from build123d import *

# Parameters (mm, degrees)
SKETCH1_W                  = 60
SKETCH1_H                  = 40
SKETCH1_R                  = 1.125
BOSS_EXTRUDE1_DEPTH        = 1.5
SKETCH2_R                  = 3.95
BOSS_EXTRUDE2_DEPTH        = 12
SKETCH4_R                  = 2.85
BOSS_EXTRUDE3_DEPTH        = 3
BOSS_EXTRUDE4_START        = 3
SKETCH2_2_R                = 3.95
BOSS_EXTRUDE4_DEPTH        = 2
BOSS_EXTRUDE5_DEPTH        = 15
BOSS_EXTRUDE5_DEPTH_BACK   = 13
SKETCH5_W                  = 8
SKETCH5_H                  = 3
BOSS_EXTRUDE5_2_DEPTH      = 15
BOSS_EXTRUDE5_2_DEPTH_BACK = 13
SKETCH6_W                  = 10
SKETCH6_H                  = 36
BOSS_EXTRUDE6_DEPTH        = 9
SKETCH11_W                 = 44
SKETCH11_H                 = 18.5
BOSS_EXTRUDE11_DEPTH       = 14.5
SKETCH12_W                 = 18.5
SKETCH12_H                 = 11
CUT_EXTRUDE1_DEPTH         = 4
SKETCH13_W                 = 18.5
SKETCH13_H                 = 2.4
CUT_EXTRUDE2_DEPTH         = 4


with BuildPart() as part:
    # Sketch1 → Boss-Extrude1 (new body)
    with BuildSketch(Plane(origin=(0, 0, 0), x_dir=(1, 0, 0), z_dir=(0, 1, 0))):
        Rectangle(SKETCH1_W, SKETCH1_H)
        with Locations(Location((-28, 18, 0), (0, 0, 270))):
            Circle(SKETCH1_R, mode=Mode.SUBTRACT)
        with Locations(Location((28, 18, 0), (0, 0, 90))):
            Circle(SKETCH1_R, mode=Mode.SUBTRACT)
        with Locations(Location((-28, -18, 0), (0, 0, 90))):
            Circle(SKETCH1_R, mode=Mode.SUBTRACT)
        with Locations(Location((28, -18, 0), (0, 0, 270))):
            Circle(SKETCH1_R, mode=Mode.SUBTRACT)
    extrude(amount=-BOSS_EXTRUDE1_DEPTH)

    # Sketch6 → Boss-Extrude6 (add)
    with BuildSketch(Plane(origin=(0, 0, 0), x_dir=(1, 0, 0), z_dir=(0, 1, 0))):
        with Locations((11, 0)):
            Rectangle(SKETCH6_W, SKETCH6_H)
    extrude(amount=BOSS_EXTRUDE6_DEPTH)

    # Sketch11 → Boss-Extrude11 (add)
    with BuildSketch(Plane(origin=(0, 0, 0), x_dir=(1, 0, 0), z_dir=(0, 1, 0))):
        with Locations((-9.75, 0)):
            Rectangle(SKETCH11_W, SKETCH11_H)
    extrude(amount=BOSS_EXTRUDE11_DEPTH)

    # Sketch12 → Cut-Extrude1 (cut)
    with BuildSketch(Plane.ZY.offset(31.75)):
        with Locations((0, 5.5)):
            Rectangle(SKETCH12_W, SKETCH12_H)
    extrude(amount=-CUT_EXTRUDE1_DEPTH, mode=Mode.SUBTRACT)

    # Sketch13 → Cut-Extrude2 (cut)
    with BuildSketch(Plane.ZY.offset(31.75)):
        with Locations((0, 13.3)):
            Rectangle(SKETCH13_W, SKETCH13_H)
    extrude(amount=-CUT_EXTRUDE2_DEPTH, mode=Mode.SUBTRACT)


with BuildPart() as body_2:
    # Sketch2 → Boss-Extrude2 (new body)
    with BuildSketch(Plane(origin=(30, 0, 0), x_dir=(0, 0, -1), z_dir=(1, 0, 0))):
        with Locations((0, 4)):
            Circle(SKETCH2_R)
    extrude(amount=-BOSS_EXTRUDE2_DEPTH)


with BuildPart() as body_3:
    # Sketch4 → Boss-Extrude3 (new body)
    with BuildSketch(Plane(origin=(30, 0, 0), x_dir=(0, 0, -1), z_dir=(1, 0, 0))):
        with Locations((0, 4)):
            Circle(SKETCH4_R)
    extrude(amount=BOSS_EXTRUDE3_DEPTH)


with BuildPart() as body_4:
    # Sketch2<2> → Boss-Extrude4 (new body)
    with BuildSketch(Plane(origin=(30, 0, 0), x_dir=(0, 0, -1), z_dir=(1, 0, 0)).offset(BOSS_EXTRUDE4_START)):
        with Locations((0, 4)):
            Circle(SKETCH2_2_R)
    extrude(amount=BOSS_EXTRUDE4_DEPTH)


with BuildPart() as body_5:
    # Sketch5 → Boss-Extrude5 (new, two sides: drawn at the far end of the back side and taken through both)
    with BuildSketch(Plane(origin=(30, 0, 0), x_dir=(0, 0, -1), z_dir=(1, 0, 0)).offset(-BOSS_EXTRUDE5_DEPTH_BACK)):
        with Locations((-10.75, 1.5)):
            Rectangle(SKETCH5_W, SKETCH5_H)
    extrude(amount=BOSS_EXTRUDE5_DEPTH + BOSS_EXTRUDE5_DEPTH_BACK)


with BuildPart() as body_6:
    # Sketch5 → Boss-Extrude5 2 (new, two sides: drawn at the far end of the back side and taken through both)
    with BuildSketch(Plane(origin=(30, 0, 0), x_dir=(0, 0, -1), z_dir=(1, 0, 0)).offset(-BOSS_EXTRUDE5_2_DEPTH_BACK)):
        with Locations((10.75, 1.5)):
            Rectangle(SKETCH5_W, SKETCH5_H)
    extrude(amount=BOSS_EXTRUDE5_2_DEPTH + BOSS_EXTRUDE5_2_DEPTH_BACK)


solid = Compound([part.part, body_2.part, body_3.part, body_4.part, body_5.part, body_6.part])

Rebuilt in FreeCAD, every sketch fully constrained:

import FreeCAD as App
import Part
import Sketcher
from FreeCAD import Vector
Q = App.Units.Quantity


def add_polygon(sketch, points):
    """Adds a closed chain of lines whose ends are joined by coincident constraints."""
    first, n = sketch.GeometryCount, len(points)
    for a, b in zip(points, points[1:] + points[:1]):
        sketch.addGeometry(Part.LineSegment(App.Vector(*a, 0), App.Vector(*b, 0)), False)
    for i in range(n):
        sketch.addConstraint(Sketcher.Constraint("Coincident", first + i, 2, first + (i + 1) % n, 1))

doc = App.newDocument("Part")
params = doc.addObject("Spreadsheet::Sheet", "Params")
for row, (alias, value) in enumerate([
    ("sketch1_diameter", "2.25 mm"),
    ("sketch1_width", "60 mm"),
    ("sketch1_height", "40 mm"),
    ("pad1_length", "1.5 mm"),
    ("sketch2_width", "10 mm"),
    ("sketch2_height", "36 mm"),
    ("pad2_length", "9 mm"),
    ("sketch3_width", "44 mm"),
    ("sketch3_height", "18.5 mm"),
    ("pad3_length", "14.5 mm"),
    ("sketch4_width", "11 mm"),
    ("sketch4_height", "18.5 mm"),
    ("pocket1_length", "4 mm"),
    ("sketch5_width", "2.4 mm"),
    ("sketch5_height", "18.5 mm"),
    ("pocket2_length", "4 mm"),
    ("sketch6_diameter", "7.9 mm"),
    ("pad4_length", "12 mm"),
    ("sketch7_diameter", "5.7 mm"),
    ("pad5_length", "3 mm"),
    ("sketch8_diameter", "7.9 mm"),
    ("pad6_length", "2 mm"),
    ("sketch9_width", "3 mm"),
    ("sketch9_height", "8 mm"),
    ("pad7_length", "15 mm"),
    ("pad7_length2", "13 mm"),
    ("sketch10_width", "3 mm"),
    ("sketch10_height", "8 mm"),
    ("pad8_length", "15 mm"),
    ("pad8_length2", "13 mm"),
], start=1):
    params.set(f"A{row}", alias)
    params.set(f"B{row}", "=" + value)
    params.setAlias(f"B{row}", alias)

body = doc.addObject("PartDesign::Body", "Body")

sketch1 = body.newObject("Sketcher::SketchObject", "Sketch")
sketch1.AttachmentSupport = (doc.getObject("XZ_Plane"), [""])
sketch1.MapMode = "FlatFace"
add_polygon(sketch1, [(-30, -20), (-30, 20), (30, 20), (30, -20)])
sketch1.addGeometry(Part.Circle(Vector(-28, 18, 0), Vector(0, 0, 1), 1.1), False)
sketch1.addGeometry(Part.Circle(Vector(28, 18, 0), Vector(0, 0, 1), 1.1), False)
sketch1.addGeometry(Part.Circle(Vector(-28, -18, 0), Vector(0, 0, 1), 1.1), False)
sketch1.addGeometry(Part.Circle(Vector(28, -18, 0), Vector(0, 0, 1), 1.1), False)
sketch1.addConstraint([
    Sketcher.Constraint("Vertical", 0),
    Sketcher.Constraint("Horizontal", 1),
    Sketcher.Constraint("Vertical", 2),
    Sketcher.Constraint("Horizontal", 3),
    Sketcher.Constraint("Equal", 4, 5),
    Sketcher.Constraint("Equal", 5, 6),
    Sketcher.Constraint("Equal", 6, 7),
    Sketcher.Constraint("Symmetric", 5, 3, 6, 3, -1, 1),
    Sketcher.Constraint("Symmetric", 4, 3, 7, 3, -1, 1),
    Sketcher.Constraint("Symmetric", 0, 2, 2, 2, -1, 1),
    Sketcher.Constraint("Symmetric", 4, 3, 5, 3, -2),
    Sketcher.Constraint("Diameter", 4, Q("2.25 mm")),
    Sketcher.Constraint("DistanceX", 1, 1, 1, 2, Q("60 mm")),
    Sketcher.Constraint("DistanceY", 0, 1, 0, 2, Q("40 mm")),
    Sketcher.Constraint("DistanceX", 4, 3, -1, 1, Q("28 mm")),
    Sketcher.Constraint("DistanceY", -1, 1, 4, 3, Q("18 mm")),
])
sketch1.setExpression("Constraints[15]", "Params.sketch1_diameter")
sketch1.setExpression("Constraints[16]", "Params.sketch1_width")
sketch1.setExpression("Constraints[17]", "Params.sketch1_height")
pad1 = body.newObject("PartDesign::Pad", "Pad")
pad1.Profile = sketch1
pad1.setExpression("Length", "Params.pad1_length")

sketch2 = body.newObject("Sketcher::SketchObject", "Sketch001")
sketch2.AttachmentSupport = (doc.getObject("XZ_Plane"), [""])
sketch2.MapMode = "FlatFace"
add_polygon(sketch2, [(6, -18), (6, 18), (16, 18), (16, -18)])
sketch2.addConstraint([
    Sketcher.Constraint("Vertical", 0),
    Sketcher.Constraint("Horizontal", 1),
    Sketcher.Constraint("Vertical", 2),
    Sketcher.Constraint("Horizontal", 3),
    Sketcher.Constraint("DistanceX", 1, 1, 1, 2, Q("10 mm")),
    Sketcher.Constraint("DistanceY", 0, 1, 0, 2, Q("36 mm")),
    Sketcher.Constraint("DistanceX", -1, 1, 0, 2, Q("6 mm")),
    Sketcher.Constraint("DistanceY", -1, 1, 0, 2, Q("18 mm")),
])
sketch2.setExpression("Constraints[8]", "Params.sketch2_width")
sketch2.setExpression("Constraints[9]", "Params.sketch2_height")
pad2 = body.newObject("PartDesign::Pad", "Pad001")
pad2.Profile = sketch2
pad2.setExpression("Length", "Params.pad2_length")
pad2.Reversed = True

sketch3 = body.newObject("Sketcher::SketchObject", "Sketch002")
sketch3.AttachmentSupport = (doc.getObject("XZ_Plane"), [""])
sketch3.MapMode = "FlatFace"
add_polygon(sketch3, [(-32, -9), (-32, 9), (12, 9), (12, -9)])
sketch3.addConstraint([
    Sketcher.Constraint("Vertical", 0),
    Sketcher.Constraint("Horizontal", 1),
    Sketcher.Constraint("Vertical", 2),
    Sketcher.Constraint("Horizontal", 3),
    Sketcher.Constraint("DistanceX", 1, 1, 1, 2, Q("44 mm")),
    Sketcher.Constraint("DistanceY", 0, 1, 0, 2, Q("18.5 mm")),
    Sketcher.Constraint("DistanceX", 0, 2, -1, 1, Q("31.75 mm")),
    Sketcher.Constraint("DistanceY", -1, 1, 0, 2, Q("9.25 mm")),
])
sketch3.setExpression("Constraints[8]", "Params.sketch3_width")
sketch3.setExpression("Constraints[9]", "Params.sketch3_height")
pad3 = body.newObject("PartDesign::Pad", "Pad002")
pad3.Profile = sketch3
pad3.setExpression("Length", "Params.pad3_length")
pad3.Reversed = True

sketch4 = body.newObject("Sketcher::SketchObject", "Sketch003")
sketch4.AttachmentSupport = (doc.getObject("YZ_Plane"), [""])
sketch4.MapMode = "FlatFace"
sketch4.AttachmentOffset = App.Placement(Vector(0, 0, -31.75), App.Rotation())
add_polygon(sketch4, [(11, -9), (0, -9), (0, 9), (11, 9)])
sketch4.addConstraint([
    Sketcher.Constraint("Horizontal", 0),
    Sketcher.Constraint("Vertical", 1),
    Sketcher.Constraint("Horizontal", 2),
    Sketcher.Constraint("Vertical", 3),
    Sketcher.Constraint("Symmetric", 0, 2, 1, 2, -1, 1),
    Sketcher.Constraint("DistanceX", 0, 2, 0, 1, Q("11 mm")),
    Sketcher.Constraint("DistanceY", 1, 1, 1, 2, Q("18.5 mm")),
])
sketch4.setExpression("Constraints[9]", "Params.sketch4_width")
sketch4.setExpression("Constraints[10]", "Params.sketch4_height")
pocket1 = body.newObject("PartDesign::Pocket", "Pocket")
pocket1.Profile = sketch4
pocket1.setExpression("Length", "Params.pocket1_length")
pocket1.Reversed = True

sketch5 = body.newObject("Sketcher::SketchObject", "Sketch004")
sketch5.AttachmentSupport = (doc.getObject("YZ_Plane"), [""])
sketch5.MapMode = "FlatFace"
sketch5.AttachmentOffset = App.Placement(Vector(0, 0, -31.75), App.Rotation())
add_polygon(sketch5, [(14.5, -9.2), (12.1, -9.2), (12.1, 9.2), (14.5, 9.2)])
sketch5.addConstraint([
    Sketcher.Constraint("Horizontal", 0),
    Sketcher.Constraint("Vertical", 1),
    Sketcher.Constraint("Horizontal", 2),
    Sketcher.Constraint("Vertical", 3),
    Sketcher.Constraint("DistanceX", 0, 2, 0, 1, Q("2.4 mm")),
    Sketcher.Constraint("DistanceY", 1, 1, 1, 2, Q("18.5 mm")),
    Sketcher.Constraint("DistanceX", -1, 1, 0, 2, Q("12.1 mm")),
    Sketcher.Constraint("DistanceY", 0, 2, -1, 1, Q("9.25 mm")),
])
sketch5.setExpression("Constraints[8]", "Params.sketch5_width")
sketch5.setExpression("Constraints[9]", "Params.sketch5_height")
pocket2 = body.newObject("PartDesign::Pocket", "Pocket001")
pocket2.Profile = sketch5
pocket2.setExpression("Length", "Params.pocket2_length")
pocket2.Reversed = True
body2 = doc.addObject("PartDesign::Body", "Body001")

sketch6 = body2.newObject("Sketcher::SketchObject", "Sketch005")
sketch6.AttachmentSupport = (doc.getObject("YZ_Plane001"), [""])
sketch6.MapMode = "FlatFace"
sketch6.AttachmentOffset = App.Placement(Vector(0, 0, 30), App.Rotation())
sketch6.addGeometry(Part.Circle(Vector(4, 0, 0), Vector(0, 0, 1), 4), False)
sketch6.addConstraint([
    Sketcher.Constraint("PointOnObject", 0, 3, -1),
    Sketcher.Constraint("Diameter", 0, Q("7.9 mm")),
    Sketcher.Constraint("DistanceX", -1, 1, 0, 3, Q("4 mm")),
])
sketch6.setExpression("Constraints[1]", "Params.sketch6_diameter")
pad4 = body2.newObject("PartDesign::Pad", "Pad003")
pad4.Profile = sketch6
pad4.setExpression("Length", "Params.pad4_length")
pad4.Reversed = True
body3 = doc.addObject("PartDesign::Body", "Body002")

sketch7 = body3.newObject("Sketcher::SketchObject", "Sketch006")
sketch7.AttachmentSupport = (doc.getObject("YZ_Plane002"), [""])
sketch7.MapMode = "FlatFace"
sketch7.AttachmentOffset = App.Placement(Vector(0, 0, 30), App.Rotation())
sketch7.addGeometry(Part.Circle(Vector(4, 0, 0), Vector(0, 0, 1), 2.9), False)
sketch7.addConstraint([
    Sketcher.Constraint("PointOnObject", 0, 3, -1),
    Sketcher.Constraint("Diameter", 0, Q("5.7 mm")),
    Sketcher.Constraint("DistanceX", -1, 1, 0, 3, Q("4 mm")),
])
sketch7.setExpression("Constraints[1]", "Params.sketch7_diameter")
pad5 = body3.newObject("PartDesign::Pad", "Pad004")
pad5.Profile = sketch7
pad5.setExpression("Length", "Params.pad5_length")
body4 = doc.addObject("PartDesign::Body", "Body003")

sketch8 = body4.newObject("Sketcher::SketchObject", "Sketch007")
sketch8.AttachmentSupport = (doc.getObject("YZ_Plane003"), [""])
sketch8.MapMode = "FlatFace"
sketch8.AttachmentOffset = App.Placement(Vector(0, 0, 33), App.Rotation())
sketch8.addGeometry(Part.Circle(Vector(4, 0, 0), Vector(0, 0, 1), 4), False)
sketch8.addConstraint([
    Sketcher.Constraint("PointOnObject", 0, 3, -1),
    Sketcher.Constraint("Diameter", 0, Q("7.9 mm")),
    Sketcher.Constraint("DistanceX", -1, 1, 0, 3, Q("4 mm")),
])
sketch8.setExpression("Constraints[1]", "Params.sketch8_diameter")
pad6 = body4.newObject("PartDesign::Pad", "Pad005")
pad6.Profile = sketch8
pad6.setExpression("Length", "Params.pad6_length")
body5 = doc.addObject("PartDesign::Body", "Body004")

sketch9 = body5.newObject("Sketcher::SketchObject", "Sketch008")
sketch9.AttachmentSupport = (doc.getObject("YZ_Plane004"), [""])
sketch9.MapMode = "FlatFace"
sketch9.AttachmentOffset = App.Placement(Vector(0, 0, 30), App.Rotation())
add_polygon(sketch9, [(3, 14.8), (0, 14.8), (0, 6.8), (3, 6.8)])
sketch9.addConstraint([
    Sketcher.Constraint("Horizontal", 0),
    Sketcher.Constraint("Vertical", 1),
    Sketcher.Constraint("Horizontal", 2),
    Sketcher.Constraint("Vertical", 3),
    Sketcher.Constraint("PointOnObject", 0, 2, -2),
    Sketcher.Constraint("DistanceX", 0, 2, 0, 1, Q("3 mm")),
    Sketcher.Constraint("DistanceY", 1, 2, 1, 1, Q("8 mm")),
    Sketcher.Constraint("DistanceY", -1, 1, 0, 2, Q("14.75 mm")),
])
sketch9.setExpression("Constraints[9]", "Params.sketch9_width")
sketch9.setExpression("Constraints[10]", "Params.sketch9_height")
pad7 = body5.newObject("PartDesign::Pad", "Pad006")
pad7.Profile = sketch9
pad7.Type = "TwoLengths"
pad7.setExpression("Length", "Params.pad7_length")
pad7.setExpression("Length2", "Params.pad7_length2")
body6 = doc.addObject("PartDesign::Body", "Body005")

sketch10 = body6.newObject("Sketcher::SketchObject", "Sketch009")
sketch10.AttachmentSupport = (doc.getObject("YZ_Plane005"), [""])
sketch10.MapMode = "FlatFace"
sketch10.AttachmentOffset = App.Placement(Vector(0, 0, 30), App.Rotation())
add_polygon(sketch10, [(3, -6.8), (0, -6.8), (0, -14.8), (3, -14.8)])
sketch10.addConstraint([
    Sketcher.Constraint("Horizontal", 0),
    Sketcher.Constraint("Vertical", 1),
    Sketcher.Constraint("Horizontal", 2),
    Sketcher.Constraint("Vertical", 3),
    Sketcher.Constraint("PointOnObject", 0, 2, -2),
    Sketcher.Constraint("DistanceX", 0, 2, 0, 1, Q("3 mm")),
    Sketcher.Constraint("DistanceY", 1, 2, 1, 1, Q("8 mm")),
    Sketcher.Constraint("DistanceY", 0, 2, -1, 1, Q("6.75 mm")),
])
sketch10.setExpression("Constraints[9]", "Params.sketch10_width")
sketch10.setExpression("Constraints[10]", "Params.sketch10_height")
pad8 = body6.newObject("PartDesign::Pad", "Pad007")
pad8.Profile = sketch10
pad8.Type = "TwoLengths"
pad8.setExpression("Length", "Params.pad8_length")
pad8.setExpression("Length2", "Params.pad8_length2")

doc.recompute()
